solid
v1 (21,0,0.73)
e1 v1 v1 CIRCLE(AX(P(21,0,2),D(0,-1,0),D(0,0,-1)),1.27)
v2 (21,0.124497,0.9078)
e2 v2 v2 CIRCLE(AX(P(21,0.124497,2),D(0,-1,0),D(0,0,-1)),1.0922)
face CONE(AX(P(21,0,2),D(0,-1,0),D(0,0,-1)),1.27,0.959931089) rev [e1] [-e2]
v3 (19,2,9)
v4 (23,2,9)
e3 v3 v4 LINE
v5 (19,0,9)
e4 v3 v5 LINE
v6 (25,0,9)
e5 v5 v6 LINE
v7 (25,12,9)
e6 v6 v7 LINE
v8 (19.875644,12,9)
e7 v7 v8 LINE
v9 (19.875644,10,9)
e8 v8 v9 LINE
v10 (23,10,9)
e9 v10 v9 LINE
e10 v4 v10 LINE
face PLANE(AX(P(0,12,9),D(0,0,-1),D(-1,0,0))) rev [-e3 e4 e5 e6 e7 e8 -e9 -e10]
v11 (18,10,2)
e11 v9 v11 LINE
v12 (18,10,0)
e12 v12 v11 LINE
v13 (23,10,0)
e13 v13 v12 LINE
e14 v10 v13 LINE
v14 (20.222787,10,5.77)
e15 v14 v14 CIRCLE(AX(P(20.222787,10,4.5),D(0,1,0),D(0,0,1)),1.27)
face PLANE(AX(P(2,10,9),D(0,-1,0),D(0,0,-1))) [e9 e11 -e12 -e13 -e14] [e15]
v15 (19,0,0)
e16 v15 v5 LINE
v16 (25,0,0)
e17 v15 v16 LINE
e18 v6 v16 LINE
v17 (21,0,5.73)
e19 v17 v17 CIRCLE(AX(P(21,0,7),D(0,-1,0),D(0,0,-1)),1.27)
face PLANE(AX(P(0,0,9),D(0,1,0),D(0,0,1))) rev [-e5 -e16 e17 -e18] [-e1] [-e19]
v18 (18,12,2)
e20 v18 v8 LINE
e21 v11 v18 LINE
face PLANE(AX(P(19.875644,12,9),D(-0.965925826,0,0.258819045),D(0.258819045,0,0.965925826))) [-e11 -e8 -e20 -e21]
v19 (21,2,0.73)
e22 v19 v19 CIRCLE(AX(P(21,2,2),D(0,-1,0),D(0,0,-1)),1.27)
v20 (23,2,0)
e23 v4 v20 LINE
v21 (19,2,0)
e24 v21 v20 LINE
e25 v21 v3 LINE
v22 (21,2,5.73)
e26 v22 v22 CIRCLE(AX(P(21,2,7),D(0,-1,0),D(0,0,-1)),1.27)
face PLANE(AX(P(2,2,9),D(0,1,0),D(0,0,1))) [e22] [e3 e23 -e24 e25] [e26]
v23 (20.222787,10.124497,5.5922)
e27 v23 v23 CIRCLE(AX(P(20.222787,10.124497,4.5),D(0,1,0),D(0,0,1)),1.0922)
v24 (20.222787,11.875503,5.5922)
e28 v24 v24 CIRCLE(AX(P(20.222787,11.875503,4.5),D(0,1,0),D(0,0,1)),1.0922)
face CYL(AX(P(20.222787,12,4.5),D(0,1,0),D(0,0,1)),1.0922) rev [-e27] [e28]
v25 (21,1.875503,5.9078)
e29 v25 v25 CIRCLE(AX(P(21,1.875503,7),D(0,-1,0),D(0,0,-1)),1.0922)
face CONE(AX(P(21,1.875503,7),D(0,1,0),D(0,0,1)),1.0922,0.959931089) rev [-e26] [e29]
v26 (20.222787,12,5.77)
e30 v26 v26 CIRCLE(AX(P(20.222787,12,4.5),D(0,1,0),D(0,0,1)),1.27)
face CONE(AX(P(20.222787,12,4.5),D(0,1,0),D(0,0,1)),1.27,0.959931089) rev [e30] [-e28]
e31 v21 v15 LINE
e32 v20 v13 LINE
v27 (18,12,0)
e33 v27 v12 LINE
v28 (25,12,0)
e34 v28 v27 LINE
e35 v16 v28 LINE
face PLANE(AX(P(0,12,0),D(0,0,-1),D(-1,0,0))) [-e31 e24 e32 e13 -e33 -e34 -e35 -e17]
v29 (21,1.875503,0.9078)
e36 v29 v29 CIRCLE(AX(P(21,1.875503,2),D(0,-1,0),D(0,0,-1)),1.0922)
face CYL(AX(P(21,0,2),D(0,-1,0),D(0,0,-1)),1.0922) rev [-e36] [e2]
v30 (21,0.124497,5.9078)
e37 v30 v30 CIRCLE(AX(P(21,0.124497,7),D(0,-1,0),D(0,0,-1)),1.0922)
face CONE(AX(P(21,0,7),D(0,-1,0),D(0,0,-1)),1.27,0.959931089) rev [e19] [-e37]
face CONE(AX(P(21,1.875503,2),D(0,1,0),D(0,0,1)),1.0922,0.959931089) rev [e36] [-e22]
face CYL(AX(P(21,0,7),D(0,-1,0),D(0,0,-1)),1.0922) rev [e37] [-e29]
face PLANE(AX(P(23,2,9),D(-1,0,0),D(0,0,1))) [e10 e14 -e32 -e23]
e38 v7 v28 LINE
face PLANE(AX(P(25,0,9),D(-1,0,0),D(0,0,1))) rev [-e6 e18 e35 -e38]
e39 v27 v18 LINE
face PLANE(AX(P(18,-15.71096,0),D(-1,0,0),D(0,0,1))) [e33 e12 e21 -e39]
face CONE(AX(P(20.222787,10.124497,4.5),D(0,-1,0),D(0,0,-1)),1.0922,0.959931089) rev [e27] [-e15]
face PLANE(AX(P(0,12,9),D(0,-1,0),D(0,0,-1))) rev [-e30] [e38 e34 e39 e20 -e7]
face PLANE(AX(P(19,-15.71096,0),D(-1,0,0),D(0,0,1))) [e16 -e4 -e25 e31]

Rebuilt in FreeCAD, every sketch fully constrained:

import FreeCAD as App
import Part
import Sketcher
Q = App.Units.Quantity


def edges_at(feature, points):
    """Names of the edges that pass closest to the given points."""
    edges = feature.Shape.Edges
    near = lambda p: min(range(len(edges)), key=lambda i: edges[i].distToShape(Part.Vertex(*p))[0])
    return sorted({f"Edge{near(p) + 1}" for p in points})

doc = App.newDocument("Part")
body = doc.addObject("PartDesign::Body", "Body")

sketch1 = body.newObject("Sketcher::SketchObject", "Sketch")
sketch1.AttachmentSupport = (doc.getObject("XY_Plane"), [""])
sketch1.MapMode = "FlatFace"
sketch1.addGeometry(Part.LineSegment(App.Vector(0, 12, 0), App.Vector(0, 0, 0)), False)
sketch1.addGeometry(Part.LineSegment(App.Vector(0, 0, 0), App.Vector(25, 0, 0)), False)
sketch1.addGeometry(Part.LineSegment(App.Vector(25, 0, 0), App.Vector(25, 12, 0)), False)
sketch1.addGeometry(Part.LineSegment(App.Vector(25, 12, 0), App.Vector(0, 12, 0)), False)
sketch1.addGeometry(Part.LineSegment(App.Vector(23, 2, 0), App.Vector(2, 2, 0)), False)
sketch1.addGeometry(Part.LineSegment(App.Vector(2, 2, 0), App.Vector(2, 10, 0)), False)
sketch1.addGeometry(Part.LineSegment(App.Vector(2, 10, 0), App.Vector(23, 10, 0)), False)
sketch1.addGeometry(Part.LineSegment(App.Vector(23, 10, 0), App.Vector(23, 2, 0)), False)
sketch1.addConstraint(Sketcher.Constraint("Coincident", 0, 2, 1, 1))
sketch1.addConstraint(Sketcher.Constraint("Coincident", 1, 2, 2, 1))
sketch1.addConstraint(Sketcher.Constraint("Coincident", 2, 2, 3, 1))
sketch1.addConstraint(Sketcher.Constraint("Coincident", 3, 2, 0, 1))
sketch1.addConstraint(Sketcher.Constraint("Coincident", 4, 2, 5, 1))
sketch1.addConstraint(Sketcher.Constraint("Coincident", 5, 2, 6, 1))
sketch1.addConstraint(Sketcher.Constraint("Coincident", 6, 2, 7, 1))
sketch1.addConstraint(Sketcher.Constraint("Coincident", 7, 2, 4, 1))
sketch1.addConstraint(Sketcher.Constraint("Vertical", 0))
sketch1.addConstraint(Sketcher.Constraint("Horizontal", 1))
sketch1.addConstraint(Sketcher.Constraint("Vertical", 2))
sketch1.addConstraint(Sketcher.Constraint("Horizontal", 3))
sketch1.addConstraint(Sketcher.Constraint("Horizontal", 4))
sketch1.addConstraint(Sketcher.Constraint("Vertical", 5))
sketch1.addConstraint(Sketcher.Constraint("Horizontal", 6))
sketch1.addConstraint(Sketcher.Constraint("Vertical", 7))
sketch1.addConstraint(Sketcher.Constraint("Coincident", 0, 2, -1, 1))
sketch1.addConstraint(Sketcher.Constraint("DistanceX", 1, 1, 1, 2, Q("25 mm")))
sketch1.addConstraint(Sketcher.Constraint("DistanceX", 4, 2, 4, 1, Q("21 mm")))
sketch1.addConstraint(Sketcher.Constraint("DistanceY", 0, 2, 0, 1, Q("12 mm")))
sketch1.addConstraint(Sketcher.Constraint("DistanceY", 5, 1, 5, 2, Q("8 mm")))
sketch1.addConstraint(Sketcher.Constraint("DistanceX", -1, 1, 4, 2, Q("2 mm")))
sketch1.addConstraint(Sketcher.Constraint("DistanceY", -1, 1, 4, 2, Q("2 mm")))
pad1 = body.newObject("PartDesign::Pad", "Pad")
pad1.Profile = sketch1
pad1.Length = 9

sketch2 = body.newObject("Sketcher::SketchObject", "Sketch001")
sketch2.AttachmentSupport = (doc.getObject("XY_Plane"), [""])
sketch2.MapMode = "FlatFace"
sketch2.AttachmentOffset = App.Placement(App.Vector(0, 0, 9), App.Rotation())
sketch2.addGeometry(Part.LineSegment(App.Vector(18, 10, 0), App.Vector(18, 12, 0)), False)
sketch2.addGeometry(Part.LineSegment(App.Vector(18, 12, 0), App.Vector(0, 12, 0)), False)
sketch2.addGeometry(Part.LineSegment(App.Vector(0, 12, 0), App.Vector(0, 0, 0)), False)
sketch2.addGeometry(Part.LineSegment(App.Vector(0, 0, 0), App.Vector(19, 0, 0)), False)
sketch2.addGeometry(Part.LineSegment(App.Vector(19, 0, 0), App.Vector(19, 2, 0)), False)
sketch2.addGeometry(Part.LineSegment(App.Vector(19, 2, 0), App.Vector(2, 2, 0)), False)
sketch2.addGeometry(Part.LineSegment(App.Vector(2, 2, 0), App.Vector(2, 10, 0)), False)
sketch2.addGeometry(Part.LineSegment(App.Vector(2, 10, 0), App.Vector(18, 10, 0)), False)
sketch2.addConstraint(Sketcher.Constraint("Coincident", 0, 2, 1, 1))
sketch2.addConstraint(Sketcher.Constraint("Coincident", 1, 2, 2, 1))
sketch2.addConstraint(Sketcher.Constraint("Coincident", 2, 2, 3, 1))
sketch2.addConstraint(Sketcher.Constraint("Coincident", 3, 2, 4, 1))
sketch2.addConstraint(Sketcher.Constraint("Coincident", 4, 2, 5, 1))
sketch2.addConstraint(Sketcher.Constraint("Coincident", 5, 2, 6, 1))
sketch2.addConstraint(Sketcher.Constraint("Coincident", 6, 2, 7, 1))
sketch2.addConstraint(Sketcher.Constraint("Coincident", 7, 2, 0, 1))
sketch2.addConstraint(Sketcher.Constraint("Vertical", 0))
sketch2.addConstraint(Sketcher.Constraint("Horizontal", 1))
sketch2.addConstraint(Sketcher.Constraint("Vertical", 2))
sketch2.addConstraint(Sketcher.Constraint("Horizontal", 3))
sketch2.addConstraint(Sketcher.Constraint("Vertical", 4))
sketch2.addConstraint(Sketcher.Constraint("Horizontal", 5))
sketch2.addConstraint(Sketcher.Constraint("Vertical", 6))
sketch2.addConstraint(Sketcher.Constraint("Horizontal", 7))
sketch2.addConstraint(Sketcher.Constraint("Coincident", 2, 2, -1, 1))
sketch2.addConstraint(Sketcher.Constraint("Equal", 0, 4))
sketch2.addConstraint(Sketcher.Constraint("DistanceX", 1, 2, 1, 1, Q("18 mm")))
sketch2.addConstraint(Sketcher.Constraint("DistanceX", 3, 1, 3, 2, Q("19 mm")))
sketch2.addConstraint(Sketcher.Constraint("DistanceX", 5, 2, 5, 1, Q("17 mm")))
sketch2.addConstraint(Sketcher.Constraint("DistanceY", 0, 1, 0, 2, Q("2 mm")))
sketch2.addConstraint(Sketcher.Constraint("DistanceY", 2, 2, 2, 1, Q("12 mm")))
pocket1 = body.newObject("PartDesign::Pocket", "Pocket")
pocket1.Profile = sketch2
pocket1.Type = "ThroughAll"
doc.recompute()

chamfer = body.newObject("PartDesign::Chamfer", "Chamfer")
chamfer.Base = (pocket1, edges_at(pocket1, [(18, 11, 9)]))
chamfer.ChamferType = "Two distances"
chamfer.Size = 7
chamfer.Size2 = 1.875644

sketch3 = body.newObject("Sketcher::SketchObject", "Sketch002")
sketch3.AttachmentSupport = (doc.getObject("YZ_Plane"), [""])
sketch3.MapMode = "FlatFace"
sketch3.AttachmentOffset = App.Placement(App.Vector(0, 0, 21), App.Rotation())
sketch3.addGeometry(Part.LineSegment(App.Vector(2, 2, 0), App.Vector(0, 2, 0)), False)
sketch3.addGeometry(Part.LineSegment(App.Vector(0, 2, 0), App.Vector(0, 0.73, 0)), False)
sketch3.addGeometry(Part.LineSegment(App.Vector(0, 0.73, 0), App.Vector(0.124497, 0.9078, 0)), False)
sketch3.addGeometry(Part.LineSegment(App.Vector(0.124497, 0.9078, 0), App.Vector(1.875503, 0.9078, 0)), False)
sketch3.addGeometry(Part.LineSegment(App.Vector(1.875503, 0.9078, 0), App.Vector(2, 0.73, 0)), False)
sketch3.addGeometry(Part.LineSegment(App.Vector(2, 0.73, 0), App.Vector(2, 2, 0)), False)
sketch3.addGeometry(Part.LineSegment(App.Vector(0, 2, 0), App.Vector(2, 2, 0)), True)
sketch3.addConstraint(Sketcher.Constraint("Coincident", 0, 2, 1, 1))
sketch3.addConstraint(Sketcher.Constraint("Coincident", 1, 2, 2, 1))
sketch3.addConstraint(Sketcher.Constraint("Coincident", 2, 2, 3, 1))
sketch3.addConstraint(Sketcher.Constraint("Coincident", 3, 2, 4, 1))
sketch3.addConstraint(Sketcher.Constraint("Coincident", 4, 2, 5, 1))
sketch3.addConstraint(Sketcher.Constraint("Coincident", 5, 2, 0, 1))
sketch3.addConstraint(Sketcher.Constraint("Horizontal", 0))
sketch3.addConstraint(Sketcher.Constraint("Vertical", 1))
sketch3.addConstraint(Sketcher.Constraint("Horizontal", 3))
sketch3.addConstraint(Sketcher.Constraint("Vertical", 5))
sketch3.addConstraint(Sketcher.Constraint("Horizontal", 6))
sketch3.addConstraint(Sketcher.Constraint("Coincident", 6, 1, 0, 2))
sketch3.addConstraint(Sketcher.Constraint("PointOnObject", 0, 2, -2))
sketch3.addConstraint(Sketcher.Constraint("Horizontal", 1, 2, 4, 2))
sketch3.addConstraint(Sketcher.Constraint("Vertical", 4, 2, 6, 2))
sketch3.addConstraint(Sketcher.Constraint("Equal", 2, 4))
sketch3.addConstraint(Sketcher.Constraint("DistanceX", 0, 2, 0, 1, Q("2 mm")))
sketch3.addConstraint(Sketcher.Constraint("Angle", 2, Q("55 deg")))
sketch3.addConstraint(Sketcher.Constraint("DistanceY", -1, 1, 0, 2, Q("2 mm")))
sketch3.addConstraint(Sketcher.Constraint("DistanceY", 1, 2, 1, 1, Q("1.27 mm")))
sketch3.addConstraint(Sketcher.Constraint("DistanceY", -1, 1, 2, 2, Q("0.9078 mm")))
groove = body.newObject("PartDesign::Groove", "Groove")
groove.Profile = sketch3
groove.ReferenceAxis = (sketch3, ["Axis0"])
groove.Angle = 360
doc.recompute()

linearpattern = body.newObject("PartDesign::LinearPattern", "LinearPattern")
linearpattern.Originals = [groove]
linearpattern.Direction = (doc.getObject("Z_Axis"), [""])
linearpattern.Mode = "offset"
linearpattern.Offset = 5
linearpattern.Occurrences = 2
body.Tip = linearpattern

sketch4 = body.newObject("Sketcher::SketchObject", "Sketch003")
sketch4.AttachmentSupport = (doc.getObject("YZ_Plane"), [""])
sketch4.MapMode = "FlatFace"
sketch4.AttachmentOffset = App.Placement(App.Vector(0, 0, 20.222787), App.Rotation())
sketch4.addGeometry(Part.LineSegment(App.Vector(10, 4.5, 0), App.Vector(12, 4.5, 0)), False)
sketch4.addGeometry(Part.LineSegment(App.Vector(12, 4.5, 0), App.Vector(12, 5.77, 0)), False)
sketch4.addGeometry(Part.LineSegment(App.Vector(12, 5.77, 0), App.Vector(11.875503, 5.5922, 0)), False)
sketch4.addGeometry(Part.LineSegment(App.Vector(11.875503, 5.5922, 0), App.Vector(10.124497, 5.5922, 0)), False)
sketch4.addGeometry(Part.LineSegment(App.Vector(10.124497, 5.5922, 0), App.Vector(10, 5.77, 0)), False)
sketch4.addGeometry(Part.LineSegment(App.Vector(10, 5.77, 0), App.Vector(10, 4.5, 0)), False)
sketch4.addGeometry(Part.LineSegment(App.Vector(12, 4.5, 0), App.Vector(10, 4.5, 0)), True)
sketch4.addConstraint(Sketcher.Constraint("Coincident", 0, 2, 1, 1))
sketch4.addConstraint(Sketcher.Constraint("Coincident", 1, 2, 2, 1))
sketch4.addConstraint(Sketcher.Constraint("Coincident", 2, 2, 3, 1))
sketch4.addConstraint(Sketcher.Constraint("Coincident", 3, 2, 4, 1))
sketch4.addConstraint(Sketcher.Constraint("Coincident", 4, 2, 5, 1))
sketch4.addConstraint(Sketcher.Constraint("Coincident", 5, 2, 0, 1))
sketch4.addConstraint(Sketcher.Constraint("Horizontal", 0))
sketch4.addConstraint(Sketcher.Constraint("Vertical", 1))
sketch4.addConstraint(Sketcher.Constraint("Horizontal", 3))
sketch4.addConstraint(Sketcher.Constraint("Vertical", 5))
sketch4.addConstraint(Sketcher.Constraint("Horizontal", 6))
sketch4.addConstraint(Sketcher.Constraint("Coincident", 6, 1, 0, 2))
sketch4.addConstraint(Sketcher.Constraint("Horizontal", 1, 2, 4, 2))
sketch4.addConstraint(Sketcher.Constraint("Vertical", 4, 2, 6, 2))
sketch4.addConstraint(Sketcher.Constraint("Equal", 2, 4))
sketch4.addConstraint(Sketcher.Constraint("DistanceX", 0, 1, 0, 2, Q("2 mm")))
sketch4.addConstraint(Sketcher.Constraint("Angle", 2, Q("-125 deg")))
sketch4.addConstraint(Sketcher.Constraint("DistanceX", -1, 1, 0, 2, Q("12 mm")))
sketch4.addConstraint(Sketcher.Constraint("DistanceY", 1, 1, 1, 2, Q("1.27 mm")))
sketch4.addConstraint(Sketcher.Constraint("DistanceY", -1, 1, 0, 2, Q("4.5 mm")))
sketch4.addConstraint(Sketcher.Constraint("DistanceY", -1, 1, 2, 2, Q("5.5922 mm")))
groove2 = body.newObject("PartDesign::Groove", "Groove001")
groove2.Profile = sketch4
groove2.ReferenceAxis = (sketch4, ["Axis0"])
groove2.Angle = 360

doc.recompute()
